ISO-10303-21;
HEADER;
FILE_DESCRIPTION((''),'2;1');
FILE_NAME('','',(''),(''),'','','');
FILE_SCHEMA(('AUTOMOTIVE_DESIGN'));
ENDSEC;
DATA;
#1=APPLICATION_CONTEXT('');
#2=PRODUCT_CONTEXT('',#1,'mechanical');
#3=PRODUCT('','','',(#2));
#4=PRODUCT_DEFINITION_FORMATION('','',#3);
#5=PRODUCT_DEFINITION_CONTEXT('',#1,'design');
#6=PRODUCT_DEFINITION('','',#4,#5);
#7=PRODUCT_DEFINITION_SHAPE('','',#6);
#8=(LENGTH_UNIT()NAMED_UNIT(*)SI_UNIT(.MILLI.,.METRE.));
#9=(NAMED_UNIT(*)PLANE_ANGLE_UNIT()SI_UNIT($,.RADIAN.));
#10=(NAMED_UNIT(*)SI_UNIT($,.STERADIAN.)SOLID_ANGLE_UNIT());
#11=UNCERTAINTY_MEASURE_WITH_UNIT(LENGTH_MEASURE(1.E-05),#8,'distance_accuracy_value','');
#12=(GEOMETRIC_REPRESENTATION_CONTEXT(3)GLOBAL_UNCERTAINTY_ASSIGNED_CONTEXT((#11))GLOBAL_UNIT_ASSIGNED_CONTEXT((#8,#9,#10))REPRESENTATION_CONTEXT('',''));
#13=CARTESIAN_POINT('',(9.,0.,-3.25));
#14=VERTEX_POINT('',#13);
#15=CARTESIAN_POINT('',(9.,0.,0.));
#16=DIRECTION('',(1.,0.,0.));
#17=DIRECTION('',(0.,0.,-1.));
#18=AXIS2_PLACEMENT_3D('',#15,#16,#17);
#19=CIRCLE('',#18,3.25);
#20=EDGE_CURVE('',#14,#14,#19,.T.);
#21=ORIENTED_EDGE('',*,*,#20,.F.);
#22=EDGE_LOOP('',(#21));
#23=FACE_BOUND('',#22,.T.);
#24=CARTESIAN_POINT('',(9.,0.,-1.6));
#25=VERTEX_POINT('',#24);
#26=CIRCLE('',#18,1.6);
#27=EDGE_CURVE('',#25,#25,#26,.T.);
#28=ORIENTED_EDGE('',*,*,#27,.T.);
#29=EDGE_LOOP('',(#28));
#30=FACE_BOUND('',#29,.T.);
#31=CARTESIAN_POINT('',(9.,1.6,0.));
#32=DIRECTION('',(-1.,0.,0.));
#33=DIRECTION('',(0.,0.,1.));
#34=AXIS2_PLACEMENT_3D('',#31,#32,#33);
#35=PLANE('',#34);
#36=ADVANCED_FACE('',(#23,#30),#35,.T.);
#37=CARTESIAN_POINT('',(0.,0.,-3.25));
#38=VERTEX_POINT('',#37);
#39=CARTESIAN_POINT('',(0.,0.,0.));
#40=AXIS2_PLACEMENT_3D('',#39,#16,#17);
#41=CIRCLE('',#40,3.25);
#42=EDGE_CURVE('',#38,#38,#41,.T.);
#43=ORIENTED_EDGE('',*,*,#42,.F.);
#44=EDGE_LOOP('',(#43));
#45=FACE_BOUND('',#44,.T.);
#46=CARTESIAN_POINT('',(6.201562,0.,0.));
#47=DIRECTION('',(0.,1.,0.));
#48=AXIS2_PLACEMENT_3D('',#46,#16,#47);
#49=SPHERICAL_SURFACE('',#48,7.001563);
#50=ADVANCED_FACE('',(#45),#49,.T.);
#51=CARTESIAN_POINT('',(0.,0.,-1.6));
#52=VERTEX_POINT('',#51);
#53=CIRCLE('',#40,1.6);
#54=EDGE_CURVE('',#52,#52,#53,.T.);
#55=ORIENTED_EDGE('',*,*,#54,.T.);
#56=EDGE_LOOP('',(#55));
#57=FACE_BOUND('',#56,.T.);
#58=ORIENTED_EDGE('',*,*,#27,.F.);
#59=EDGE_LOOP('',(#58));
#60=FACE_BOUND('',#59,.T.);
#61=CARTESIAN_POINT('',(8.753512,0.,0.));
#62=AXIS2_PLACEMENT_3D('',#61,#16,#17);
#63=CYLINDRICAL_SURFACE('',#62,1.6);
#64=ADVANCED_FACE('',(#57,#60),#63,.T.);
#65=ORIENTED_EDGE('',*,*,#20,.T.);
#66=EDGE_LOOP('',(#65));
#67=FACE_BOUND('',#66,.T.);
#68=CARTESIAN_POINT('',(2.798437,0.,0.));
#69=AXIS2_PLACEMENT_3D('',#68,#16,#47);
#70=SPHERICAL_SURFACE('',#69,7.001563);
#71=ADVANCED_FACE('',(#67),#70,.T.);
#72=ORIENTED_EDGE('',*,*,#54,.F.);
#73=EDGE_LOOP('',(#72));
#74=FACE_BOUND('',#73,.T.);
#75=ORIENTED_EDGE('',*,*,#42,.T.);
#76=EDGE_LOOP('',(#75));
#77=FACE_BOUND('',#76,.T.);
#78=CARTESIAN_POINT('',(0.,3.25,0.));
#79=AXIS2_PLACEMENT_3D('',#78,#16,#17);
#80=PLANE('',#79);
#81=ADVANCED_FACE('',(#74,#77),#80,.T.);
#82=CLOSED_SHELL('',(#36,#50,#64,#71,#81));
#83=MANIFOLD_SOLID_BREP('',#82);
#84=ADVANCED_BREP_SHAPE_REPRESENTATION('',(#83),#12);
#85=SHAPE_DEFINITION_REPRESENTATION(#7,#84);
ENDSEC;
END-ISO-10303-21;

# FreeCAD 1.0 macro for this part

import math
import FreeCAD as App
import Part
import Sketcher

doc = App.newDocument("Part")
params = doc.addObject("Spreadsheet::Sheet", "Params")
for row, (alias, value) in enumerate([
    ("sketch1_width", "9 mm"),
    ("sketch1_width2", "10.6 mm"),
    ("sketch1_height", "1.65 mm"),
    ("revolution_angle", "360 deg"),
], start=1):
    params.set(f"A{row}", alias)
    params.set(f"B{row}", "=" + value)
    params.setAlias(f"B{row}", alias)

body = doc.addObject("PartDesign::Body", "Body")

# Sketch on XY plane
sketch1 = body.newObject("Sketcher::SketchObject", "Sketch")
sketch1.AttachmentSupport = (doc.getObject("XY_Plane"), [""])
sketch1.MapMode = "FlatFace"
sketch1.addGeometry(Part.LineSegment(App.Vector(0, 1.6, 0), App.Vector(0, 3.2, 0)), False)
sketch1.addGeometry(Part.ArcOfCircle(Part.Circle(App.Vector(6.2, 0, 0), App.Vector(0, 0, 1), 7), math.radians(152), math.radians(180)), False)
sketch1.addGeometry(Part.LineSegment(App.Vector(-0.8, 0, 0), App.Vector(9.8, 0, 0)), False)
sketch1.addGeometry(Part.ArcOfCircle(Part.Circle(App.Vector(2.8, 0, 0), App.Vector(0, 0, 1), 7), math.radians(0), math.radians(28)), False)
sketch1.addGeometry(Part.LineSegment(App.Vector(9, 3.2, 0), App.Vector(9, 1.6, 0)), False)
sketch1.addGeometry(Part.LineSegment(App.Vector(9, 1.6, 0), App.Vector(0, 1.6, 0)), False)
sketch1.addConstraint(Sketcher.Constraint("Coincident", 0, 2, 1, 1))
sketch1.addConstraint(Sketcher.Constraint("Coincident", 1, 2, 2, 1))
sketch1.addConstraint(Sketcher.Constraint("Coincident", 2, 2, 3, 1))
sketch1.addConstraint(Sketcher.Constraint("Coincident", 3, 2, 4, 1))
sketch1.addConstraint(Sketcher.Constraint("Coincident", 4, 2, 5, 1))
sketch1.addConstraint(Sketcher.Constraint("Coincident", 5, 2, 0, 1))
sketch1.addConstraint(Sketcher.Constraint("Vertical", 0))
sketch1.addConstraint(Sketcher.Constraint("Horizontal", 2))
sketch1.addConstraint(Sketcher.Constraint("Vertical", 4))
sketch1.addConstraint(Sketcher.Constraint("Horizontal", 5))
sketch1.addConstraint(Sketcher.Constraint("Equal", 1, 3))
sketch1.addConstraint(Sketcher.Constraint("PointOnObject", 1, 3, -1))
sketch1.addConstraint(Sketcher.Constraint("PointOnObject", 3, 3, -1))
sketch1.addConstraint(Sketcher.Constraint("PointOnObject", 0, 2, -2))
sketch1.addConstraint(Sketcher.Constraint("PointOnObject", 1, 2, -1))
sketch1.addConstraint(Sketcher.Constraint("Horizontal", 0, 2, 3, 2))
sketch1.addConstraint(Sketcher.Constraint("DistanceX", 5, 2, 5, 1, 9.0))
sketch1.addConstraint(Sketcher.Constraint("DistanceX", 2, 1, 2, 2, 10.6))
sketch1.addConstraint(Sketcher.Constraint("DistanceY", 0, 1, 0, 2, 1.65))
sketch1.addConstraint(Sketcher.Constraint("DistanceY", -1, 1, 4, 2, 1.6))
sketch1.setExpression("Constraints[16]", "Params.sketch1_width")
sketch1.setExpression("Constraints[17]", "Params.sketch1_width2")
sketch1.setExpression("Constraints[18]", "Params.sketch1_height")
revolution = body.newObject("PartDesign::Revolution", "Revolution")
revolution.Profile = sketch1
revolution.ReferenceAxis = (sketch1, ["H_Axis"])
revolution.setExpression("Angle", "Params.revolution_angle")

doc.recompute()
